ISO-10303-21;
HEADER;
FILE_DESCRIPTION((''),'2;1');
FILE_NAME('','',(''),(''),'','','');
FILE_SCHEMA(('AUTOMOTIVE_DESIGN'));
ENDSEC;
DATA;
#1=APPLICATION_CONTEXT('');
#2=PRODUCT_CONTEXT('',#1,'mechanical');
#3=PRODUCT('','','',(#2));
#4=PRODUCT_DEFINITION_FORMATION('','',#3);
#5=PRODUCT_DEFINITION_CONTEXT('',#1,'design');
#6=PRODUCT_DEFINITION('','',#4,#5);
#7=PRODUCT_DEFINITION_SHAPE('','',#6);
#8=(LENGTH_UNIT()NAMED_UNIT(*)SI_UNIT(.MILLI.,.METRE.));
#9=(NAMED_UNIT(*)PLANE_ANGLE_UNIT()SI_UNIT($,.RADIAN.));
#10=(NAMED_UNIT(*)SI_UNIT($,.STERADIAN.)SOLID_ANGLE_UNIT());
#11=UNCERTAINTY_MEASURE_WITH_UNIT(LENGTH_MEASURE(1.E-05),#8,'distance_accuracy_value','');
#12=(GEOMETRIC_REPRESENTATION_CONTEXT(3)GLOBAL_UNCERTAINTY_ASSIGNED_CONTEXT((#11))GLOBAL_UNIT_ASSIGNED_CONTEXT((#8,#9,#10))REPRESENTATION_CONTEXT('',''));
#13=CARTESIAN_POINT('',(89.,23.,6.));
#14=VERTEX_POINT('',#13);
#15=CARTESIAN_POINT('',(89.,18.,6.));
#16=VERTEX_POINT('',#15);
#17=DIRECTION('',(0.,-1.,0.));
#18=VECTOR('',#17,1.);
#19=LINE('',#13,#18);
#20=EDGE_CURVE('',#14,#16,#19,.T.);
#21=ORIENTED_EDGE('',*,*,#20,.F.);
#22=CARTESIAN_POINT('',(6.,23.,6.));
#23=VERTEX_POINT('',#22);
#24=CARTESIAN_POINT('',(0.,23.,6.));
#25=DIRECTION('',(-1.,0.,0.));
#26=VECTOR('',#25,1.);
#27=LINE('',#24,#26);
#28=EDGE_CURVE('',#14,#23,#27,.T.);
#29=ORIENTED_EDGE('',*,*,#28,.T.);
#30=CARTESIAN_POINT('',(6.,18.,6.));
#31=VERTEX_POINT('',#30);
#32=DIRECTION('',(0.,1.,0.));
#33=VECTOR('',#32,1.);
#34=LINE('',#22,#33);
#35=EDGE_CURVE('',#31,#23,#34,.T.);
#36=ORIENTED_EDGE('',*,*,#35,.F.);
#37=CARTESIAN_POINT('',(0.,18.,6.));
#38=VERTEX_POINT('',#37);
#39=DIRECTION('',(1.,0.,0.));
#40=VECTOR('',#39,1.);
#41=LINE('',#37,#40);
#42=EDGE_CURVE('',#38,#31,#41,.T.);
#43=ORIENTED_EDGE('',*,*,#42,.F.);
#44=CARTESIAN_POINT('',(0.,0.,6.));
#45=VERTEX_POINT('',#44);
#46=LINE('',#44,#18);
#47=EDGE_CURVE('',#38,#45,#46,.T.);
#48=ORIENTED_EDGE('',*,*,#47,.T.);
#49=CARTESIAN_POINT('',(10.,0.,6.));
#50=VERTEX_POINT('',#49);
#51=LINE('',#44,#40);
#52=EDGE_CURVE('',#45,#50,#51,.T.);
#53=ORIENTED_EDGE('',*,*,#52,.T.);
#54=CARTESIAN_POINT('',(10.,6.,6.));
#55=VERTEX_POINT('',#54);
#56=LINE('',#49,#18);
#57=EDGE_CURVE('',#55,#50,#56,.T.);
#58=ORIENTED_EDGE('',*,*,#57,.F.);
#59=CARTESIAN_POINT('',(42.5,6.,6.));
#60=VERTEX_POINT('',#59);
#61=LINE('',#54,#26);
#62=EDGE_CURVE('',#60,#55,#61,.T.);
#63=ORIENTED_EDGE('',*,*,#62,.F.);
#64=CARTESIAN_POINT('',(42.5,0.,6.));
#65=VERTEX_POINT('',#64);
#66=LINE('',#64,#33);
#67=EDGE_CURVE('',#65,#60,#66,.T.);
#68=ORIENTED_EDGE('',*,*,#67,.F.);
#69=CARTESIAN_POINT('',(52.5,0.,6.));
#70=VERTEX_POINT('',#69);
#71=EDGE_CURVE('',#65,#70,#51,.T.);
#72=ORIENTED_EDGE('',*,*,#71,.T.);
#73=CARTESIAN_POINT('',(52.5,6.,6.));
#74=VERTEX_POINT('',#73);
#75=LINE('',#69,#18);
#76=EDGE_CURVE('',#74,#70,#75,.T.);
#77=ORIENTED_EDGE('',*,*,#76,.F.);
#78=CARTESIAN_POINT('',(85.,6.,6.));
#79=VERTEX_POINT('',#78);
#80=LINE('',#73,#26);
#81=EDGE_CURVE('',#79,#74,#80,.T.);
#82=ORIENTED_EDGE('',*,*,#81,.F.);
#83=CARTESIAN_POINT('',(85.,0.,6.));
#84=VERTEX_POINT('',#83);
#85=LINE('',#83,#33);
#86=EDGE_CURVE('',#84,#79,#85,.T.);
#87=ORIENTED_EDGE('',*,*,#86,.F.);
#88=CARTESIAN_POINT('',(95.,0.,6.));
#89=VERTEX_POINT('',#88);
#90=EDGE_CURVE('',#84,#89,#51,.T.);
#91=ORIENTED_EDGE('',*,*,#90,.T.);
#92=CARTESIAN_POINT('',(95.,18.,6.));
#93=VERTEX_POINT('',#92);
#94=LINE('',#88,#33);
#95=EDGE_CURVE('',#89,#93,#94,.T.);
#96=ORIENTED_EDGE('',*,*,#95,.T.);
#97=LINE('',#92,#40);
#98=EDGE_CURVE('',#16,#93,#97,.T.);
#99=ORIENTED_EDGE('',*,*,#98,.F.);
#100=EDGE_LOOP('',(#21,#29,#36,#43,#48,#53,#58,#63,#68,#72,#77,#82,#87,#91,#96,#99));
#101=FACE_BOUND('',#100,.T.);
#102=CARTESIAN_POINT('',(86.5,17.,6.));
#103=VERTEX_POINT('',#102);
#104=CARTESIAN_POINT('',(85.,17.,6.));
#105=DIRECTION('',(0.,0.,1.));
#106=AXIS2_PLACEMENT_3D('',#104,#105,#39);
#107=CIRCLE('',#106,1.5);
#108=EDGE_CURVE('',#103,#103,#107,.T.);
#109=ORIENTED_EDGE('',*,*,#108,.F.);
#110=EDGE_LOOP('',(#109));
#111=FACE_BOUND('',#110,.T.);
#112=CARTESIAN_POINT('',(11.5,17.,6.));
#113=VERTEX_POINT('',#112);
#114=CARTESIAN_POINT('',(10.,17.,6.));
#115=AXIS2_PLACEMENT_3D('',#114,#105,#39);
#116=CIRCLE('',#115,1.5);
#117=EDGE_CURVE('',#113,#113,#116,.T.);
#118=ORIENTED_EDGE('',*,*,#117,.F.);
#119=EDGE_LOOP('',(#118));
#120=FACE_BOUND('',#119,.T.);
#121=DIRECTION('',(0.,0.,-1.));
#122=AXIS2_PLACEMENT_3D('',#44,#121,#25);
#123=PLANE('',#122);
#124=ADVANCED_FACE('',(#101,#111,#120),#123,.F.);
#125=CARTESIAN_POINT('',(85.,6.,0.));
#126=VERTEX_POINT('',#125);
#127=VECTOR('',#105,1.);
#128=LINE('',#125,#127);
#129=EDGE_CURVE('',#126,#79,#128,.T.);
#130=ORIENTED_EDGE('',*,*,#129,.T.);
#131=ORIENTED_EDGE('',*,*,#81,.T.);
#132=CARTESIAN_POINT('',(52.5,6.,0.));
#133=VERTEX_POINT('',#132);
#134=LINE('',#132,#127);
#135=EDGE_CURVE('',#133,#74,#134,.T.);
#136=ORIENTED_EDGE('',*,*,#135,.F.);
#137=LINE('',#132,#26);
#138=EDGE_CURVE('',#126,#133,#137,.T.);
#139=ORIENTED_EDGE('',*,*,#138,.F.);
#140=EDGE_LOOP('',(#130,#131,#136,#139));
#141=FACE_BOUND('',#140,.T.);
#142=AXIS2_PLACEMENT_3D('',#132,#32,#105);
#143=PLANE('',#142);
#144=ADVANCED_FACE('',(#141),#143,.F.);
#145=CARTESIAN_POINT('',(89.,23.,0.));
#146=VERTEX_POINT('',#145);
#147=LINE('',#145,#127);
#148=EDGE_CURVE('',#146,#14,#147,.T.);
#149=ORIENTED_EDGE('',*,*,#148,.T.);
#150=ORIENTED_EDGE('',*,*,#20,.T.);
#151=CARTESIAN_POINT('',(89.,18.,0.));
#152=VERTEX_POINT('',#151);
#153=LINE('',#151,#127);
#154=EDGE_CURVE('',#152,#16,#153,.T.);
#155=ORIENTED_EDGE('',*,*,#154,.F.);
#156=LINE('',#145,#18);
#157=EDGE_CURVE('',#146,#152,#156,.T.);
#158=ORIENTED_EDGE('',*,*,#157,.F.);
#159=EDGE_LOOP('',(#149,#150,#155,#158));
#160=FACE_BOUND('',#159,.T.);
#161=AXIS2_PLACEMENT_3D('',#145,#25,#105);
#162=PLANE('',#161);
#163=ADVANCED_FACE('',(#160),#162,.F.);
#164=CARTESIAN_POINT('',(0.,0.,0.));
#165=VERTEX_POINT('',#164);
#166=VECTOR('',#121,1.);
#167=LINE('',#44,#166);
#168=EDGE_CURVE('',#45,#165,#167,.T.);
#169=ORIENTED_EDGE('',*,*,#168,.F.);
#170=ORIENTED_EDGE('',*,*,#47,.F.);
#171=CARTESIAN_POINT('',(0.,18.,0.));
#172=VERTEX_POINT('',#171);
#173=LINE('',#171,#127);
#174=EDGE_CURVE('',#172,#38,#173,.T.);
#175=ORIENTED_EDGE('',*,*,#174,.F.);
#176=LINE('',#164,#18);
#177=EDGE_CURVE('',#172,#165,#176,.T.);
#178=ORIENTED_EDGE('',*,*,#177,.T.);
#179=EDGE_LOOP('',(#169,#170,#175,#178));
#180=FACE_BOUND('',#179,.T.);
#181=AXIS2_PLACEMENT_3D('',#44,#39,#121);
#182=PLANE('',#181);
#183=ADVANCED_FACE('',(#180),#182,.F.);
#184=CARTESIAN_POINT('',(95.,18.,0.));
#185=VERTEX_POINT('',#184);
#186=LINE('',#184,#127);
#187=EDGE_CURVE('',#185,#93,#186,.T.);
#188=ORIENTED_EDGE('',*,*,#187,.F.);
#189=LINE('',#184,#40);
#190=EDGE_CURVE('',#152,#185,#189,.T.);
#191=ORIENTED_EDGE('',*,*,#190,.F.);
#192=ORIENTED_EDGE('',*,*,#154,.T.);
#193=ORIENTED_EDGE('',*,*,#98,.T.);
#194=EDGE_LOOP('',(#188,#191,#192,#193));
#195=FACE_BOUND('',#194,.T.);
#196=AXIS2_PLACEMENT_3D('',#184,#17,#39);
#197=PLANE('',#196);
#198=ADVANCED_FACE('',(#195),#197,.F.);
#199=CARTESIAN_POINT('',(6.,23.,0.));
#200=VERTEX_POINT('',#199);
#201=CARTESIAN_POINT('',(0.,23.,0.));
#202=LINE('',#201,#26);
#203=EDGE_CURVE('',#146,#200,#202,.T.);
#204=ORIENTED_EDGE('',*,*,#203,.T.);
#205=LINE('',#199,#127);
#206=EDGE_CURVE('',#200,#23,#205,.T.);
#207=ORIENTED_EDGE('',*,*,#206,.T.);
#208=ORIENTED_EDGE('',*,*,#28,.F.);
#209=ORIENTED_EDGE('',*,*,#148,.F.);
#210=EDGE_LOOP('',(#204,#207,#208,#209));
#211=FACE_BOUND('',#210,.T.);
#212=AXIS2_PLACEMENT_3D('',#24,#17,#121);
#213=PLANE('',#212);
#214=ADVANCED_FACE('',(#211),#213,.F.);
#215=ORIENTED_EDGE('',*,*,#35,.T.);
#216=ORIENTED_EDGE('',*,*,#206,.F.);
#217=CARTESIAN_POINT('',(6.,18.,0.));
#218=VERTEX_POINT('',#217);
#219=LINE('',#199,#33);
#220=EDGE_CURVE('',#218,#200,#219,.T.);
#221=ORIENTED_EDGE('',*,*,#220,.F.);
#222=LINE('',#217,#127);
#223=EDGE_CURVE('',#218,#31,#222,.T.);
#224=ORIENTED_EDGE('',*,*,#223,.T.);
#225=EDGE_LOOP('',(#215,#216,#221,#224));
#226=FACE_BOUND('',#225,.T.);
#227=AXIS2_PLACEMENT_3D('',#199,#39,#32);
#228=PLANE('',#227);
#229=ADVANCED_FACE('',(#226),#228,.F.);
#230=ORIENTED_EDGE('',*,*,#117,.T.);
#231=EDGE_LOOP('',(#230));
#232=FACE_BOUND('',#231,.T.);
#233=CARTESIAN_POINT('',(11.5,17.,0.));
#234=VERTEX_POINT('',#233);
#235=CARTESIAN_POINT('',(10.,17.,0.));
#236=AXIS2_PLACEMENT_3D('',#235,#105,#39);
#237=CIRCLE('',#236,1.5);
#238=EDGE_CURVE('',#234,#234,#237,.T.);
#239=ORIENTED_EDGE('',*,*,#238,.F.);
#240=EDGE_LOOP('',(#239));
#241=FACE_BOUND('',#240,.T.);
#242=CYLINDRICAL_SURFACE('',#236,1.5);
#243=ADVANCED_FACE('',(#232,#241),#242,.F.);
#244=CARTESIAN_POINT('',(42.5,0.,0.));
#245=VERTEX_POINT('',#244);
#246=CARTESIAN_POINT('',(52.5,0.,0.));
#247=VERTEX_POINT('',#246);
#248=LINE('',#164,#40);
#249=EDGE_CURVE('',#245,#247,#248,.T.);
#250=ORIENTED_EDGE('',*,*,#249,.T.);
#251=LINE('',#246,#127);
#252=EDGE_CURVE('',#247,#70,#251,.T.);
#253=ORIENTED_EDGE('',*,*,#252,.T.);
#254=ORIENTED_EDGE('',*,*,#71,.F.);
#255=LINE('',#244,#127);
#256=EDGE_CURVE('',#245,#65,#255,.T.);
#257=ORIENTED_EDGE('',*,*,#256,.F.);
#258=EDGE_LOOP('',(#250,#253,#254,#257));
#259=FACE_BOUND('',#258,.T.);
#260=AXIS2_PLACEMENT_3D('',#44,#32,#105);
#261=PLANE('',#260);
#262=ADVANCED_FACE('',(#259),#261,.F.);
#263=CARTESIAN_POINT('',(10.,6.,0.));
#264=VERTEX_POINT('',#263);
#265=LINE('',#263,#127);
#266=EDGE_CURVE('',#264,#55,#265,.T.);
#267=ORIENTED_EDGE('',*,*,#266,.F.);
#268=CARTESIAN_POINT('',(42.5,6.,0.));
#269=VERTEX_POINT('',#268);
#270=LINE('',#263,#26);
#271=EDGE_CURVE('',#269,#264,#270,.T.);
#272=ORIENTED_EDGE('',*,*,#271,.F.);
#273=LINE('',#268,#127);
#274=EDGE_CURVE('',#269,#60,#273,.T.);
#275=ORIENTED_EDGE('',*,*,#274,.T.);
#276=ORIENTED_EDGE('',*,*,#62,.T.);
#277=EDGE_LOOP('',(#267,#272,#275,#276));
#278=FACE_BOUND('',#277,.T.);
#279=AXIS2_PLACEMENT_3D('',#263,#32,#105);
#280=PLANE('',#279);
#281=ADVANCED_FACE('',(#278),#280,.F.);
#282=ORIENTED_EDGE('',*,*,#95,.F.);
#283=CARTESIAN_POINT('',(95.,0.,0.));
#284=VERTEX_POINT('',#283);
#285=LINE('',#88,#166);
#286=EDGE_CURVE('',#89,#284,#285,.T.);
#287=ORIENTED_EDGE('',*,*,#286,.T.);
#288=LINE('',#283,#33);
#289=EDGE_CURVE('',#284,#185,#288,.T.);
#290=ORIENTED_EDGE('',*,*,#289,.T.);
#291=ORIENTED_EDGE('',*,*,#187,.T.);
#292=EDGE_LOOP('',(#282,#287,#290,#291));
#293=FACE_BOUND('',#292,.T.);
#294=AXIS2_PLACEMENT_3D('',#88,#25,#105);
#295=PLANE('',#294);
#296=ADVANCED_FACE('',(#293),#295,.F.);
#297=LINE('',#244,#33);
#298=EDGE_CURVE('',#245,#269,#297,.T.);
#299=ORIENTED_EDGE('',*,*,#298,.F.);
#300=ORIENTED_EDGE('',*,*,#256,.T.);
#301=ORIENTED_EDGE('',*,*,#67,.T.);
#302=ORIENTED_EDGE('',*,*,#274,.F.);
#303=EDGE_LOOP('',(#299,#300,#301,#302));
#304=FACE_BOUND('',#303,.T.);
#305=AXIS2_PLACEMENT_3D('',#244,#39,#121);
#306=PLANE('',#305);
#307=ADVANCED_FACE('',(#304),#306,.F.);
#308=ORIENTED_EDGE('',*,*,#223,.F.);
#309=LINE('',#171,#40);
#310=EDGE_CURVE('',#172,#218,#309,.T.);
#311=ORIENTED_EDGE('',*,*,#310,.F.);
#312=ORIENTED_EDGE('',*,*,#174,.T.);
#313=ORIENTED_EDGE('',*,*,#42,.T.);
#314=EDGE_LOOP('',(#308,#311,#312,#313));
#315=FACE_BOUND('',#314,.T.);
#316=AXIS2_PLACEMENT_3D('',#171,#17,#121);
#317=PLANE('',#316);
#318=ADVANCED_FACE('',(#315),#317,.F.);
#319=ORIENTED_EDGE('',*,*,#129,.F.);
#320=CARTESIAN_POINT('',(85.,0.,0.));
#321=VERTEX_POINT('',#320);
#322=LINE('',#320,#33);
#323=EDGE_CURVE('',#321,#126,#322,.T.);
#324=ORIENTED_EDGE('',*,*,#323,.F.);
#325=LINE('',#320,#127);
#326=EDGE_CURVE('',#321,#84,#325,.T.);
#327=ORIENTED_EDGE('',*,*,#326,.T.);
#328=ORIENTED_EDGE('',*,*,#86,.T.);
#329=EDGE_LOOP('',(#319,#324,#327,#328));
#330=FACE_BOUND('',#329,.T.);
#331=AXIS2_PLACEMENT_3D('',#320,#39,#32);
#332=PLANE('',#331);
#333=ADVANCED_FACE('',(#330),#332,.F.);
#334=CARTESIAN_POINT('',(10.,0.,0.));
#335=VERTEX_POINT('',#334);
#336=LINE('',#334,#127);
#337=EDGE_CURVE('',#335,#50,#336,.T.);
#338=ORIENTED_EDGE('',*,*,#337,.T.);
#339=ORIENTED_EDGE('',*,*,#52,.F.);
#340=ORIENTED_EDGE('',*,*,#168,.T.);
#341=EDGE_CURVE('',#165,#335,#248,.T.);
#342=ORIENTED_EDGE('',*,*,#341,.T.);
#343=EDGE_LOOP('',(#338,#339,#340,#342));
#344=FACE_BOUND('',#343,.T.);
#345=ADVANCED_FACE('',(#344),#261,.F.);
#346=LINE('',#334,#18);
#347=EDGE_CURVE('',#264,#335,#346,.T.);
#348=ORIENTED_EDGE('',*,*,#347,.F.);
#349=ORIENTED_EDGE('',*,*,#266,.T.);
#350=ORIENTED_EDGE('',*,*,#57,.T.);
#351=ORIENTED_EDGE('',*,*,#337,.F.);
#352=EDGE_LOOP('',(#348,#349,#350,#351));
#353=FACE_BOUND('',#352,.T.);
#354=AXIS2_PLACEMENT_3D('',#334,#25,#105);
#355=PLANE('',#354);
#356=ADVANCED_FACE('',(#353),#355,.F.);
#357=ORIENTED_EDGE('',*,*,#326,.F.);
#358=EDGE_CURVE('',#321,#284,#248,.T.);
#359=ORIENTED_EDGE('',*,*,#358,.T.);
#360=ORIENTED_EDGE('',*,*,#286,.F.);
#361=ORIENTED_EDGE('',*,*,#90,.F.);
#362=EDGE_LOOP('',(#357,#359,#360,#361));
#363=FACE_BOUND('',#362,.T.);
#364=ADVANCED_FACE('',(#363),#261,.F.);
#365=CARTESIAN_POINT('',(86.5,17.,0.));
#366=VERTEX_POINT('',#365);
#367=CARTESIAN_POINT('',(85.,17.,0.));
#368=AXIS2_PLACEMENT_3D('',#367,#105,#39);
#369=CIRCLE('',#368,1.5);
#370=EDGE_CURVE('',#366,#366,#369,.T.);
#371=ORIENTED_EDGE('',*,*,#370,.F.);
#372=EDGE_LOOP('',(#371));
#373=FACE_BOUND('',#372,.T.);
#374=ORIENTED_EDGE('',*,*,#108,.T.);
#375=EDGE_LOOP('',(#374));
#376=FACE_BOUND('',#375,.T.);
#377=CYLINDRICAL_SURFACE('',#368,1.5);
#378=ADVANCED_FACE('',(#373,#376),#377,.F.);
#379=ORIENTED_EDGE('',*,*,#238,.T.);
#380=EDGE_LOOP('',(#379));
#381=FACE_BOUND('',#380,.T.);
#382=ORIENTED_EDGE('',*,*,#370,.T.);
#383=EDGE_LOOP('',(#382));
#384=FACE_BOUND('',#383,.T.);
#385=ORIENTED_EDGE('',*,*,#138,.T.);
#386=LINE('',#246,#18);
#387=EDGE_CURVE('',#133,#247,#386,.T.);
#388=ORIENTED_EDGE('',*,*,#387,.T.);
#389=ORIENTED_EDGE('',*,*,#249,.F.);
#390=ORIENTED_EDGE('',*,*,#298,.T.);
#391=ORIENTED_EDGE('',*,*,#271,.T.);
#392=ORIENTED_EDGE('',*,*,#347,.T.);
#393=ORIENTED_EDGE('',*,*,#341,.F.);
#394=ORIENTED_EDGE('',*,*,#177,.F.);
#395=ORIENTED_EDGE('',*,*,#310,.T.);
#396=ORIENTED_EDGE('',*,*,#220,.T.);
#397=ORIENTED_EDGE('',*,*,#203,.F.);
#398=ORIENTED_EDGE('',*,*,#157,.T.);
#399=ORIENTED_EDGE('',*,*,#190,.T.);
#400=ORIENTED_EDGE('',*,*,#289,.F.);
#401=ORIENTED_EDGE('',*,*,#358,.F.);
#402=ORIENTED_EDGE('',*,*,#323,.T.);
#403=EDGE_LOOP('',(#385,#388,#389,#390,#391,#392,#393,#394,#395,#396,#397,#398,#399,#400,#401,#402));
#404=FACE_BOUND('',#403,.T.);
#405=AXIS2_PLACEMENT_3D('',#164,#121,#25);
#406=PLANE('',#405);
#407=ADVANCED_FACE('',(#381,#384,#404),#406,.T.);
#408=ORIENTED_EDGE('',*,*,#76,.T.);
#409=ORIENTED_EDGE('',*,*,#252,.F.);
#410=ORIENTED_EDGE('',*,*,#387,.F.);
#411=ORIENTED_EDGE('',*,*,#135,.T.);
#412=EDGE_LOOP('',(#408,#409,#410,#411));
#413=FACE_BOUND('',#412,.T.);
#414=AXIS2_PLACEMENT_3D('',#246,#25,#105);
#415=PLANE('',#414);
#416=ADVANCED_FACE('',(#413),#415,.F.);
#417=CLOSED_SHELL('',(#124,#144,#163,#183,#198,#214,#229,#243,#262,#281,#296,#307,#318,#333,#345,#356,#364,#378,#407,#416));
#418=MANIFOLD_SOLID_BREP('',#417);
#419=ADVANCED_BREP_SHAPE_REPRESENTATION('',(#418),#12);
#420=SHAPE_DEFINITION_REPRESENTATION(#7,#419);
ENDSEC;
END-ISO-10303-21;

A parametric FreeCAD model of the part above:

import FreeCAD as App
import Part
import Sketcher
Q = App.Units.Quantity


def add_polygon(sketch, points):
    """Adds a closed chain of lines whose ends are joined by coincident constraints."""
    first, n = sketch.GeometryCount, len(points)
    for a, b in zip(points, points[1:] + points[:1]):
        sketch.addGeometry(Part.LineSegment(App.Vector(*a, 0), App.Vector(*b, 0)), False)
    for i in range(n):
        sketch.addConstraint(Sketcher.Constraint("Coincident", first + i, 2, first + (i + 1) % n, 1))

doc = App.newDocument("Part")
params = doc.addObject("Spreadsheet::Sheet", "Params")
for row, (alias, value) in enumerate([
    ("sketch1_width", "95 mm"),
    ("sketch1_height", "23 mm"),
    ("pad1_length", "6 mm"),
    ("sketch2_height", "6 mm"),
    ("sketch2_width", "32.5 mm"),
    ("sketch3_diameter", "3 mm"),
    ("sketch4_width", "6 mm"),
    ("sketch4_height", "5 mm"),
], start=1):
    params.set(f"A{row}", alias)
    params.set(f"B{row}", "=" + value)
    params.setAlias(f"B{row}", alias)

body = doc.addObject("PartDesign::Body", "Body")

sketch1 = body.newObject("Sketcher::SketchObject", "Sketch")
sketch1.AttachmentSupport = (doc.getObject("XY_Plane"), [""])
sketch1.MapMode = "FlatFace"
add_polygon(sketch1, [(0, 23), (0, 0), (95, 0), (95, 23)])
sketch1.addConstraint([
    Sketcher.Constraint("Vertical", 0),
    Sketcher.Constraint("Horizontal", 1),
    Sketcher.Constraint("Vertical", 2),
    Sketcher.Constraint("Horizontal", 3),
    Sketcher.Constraint("Coincident", 0, 2, -1, 1),
    Sketcher.Constraint("DistanceX", 1, 1, 1, 2, Q("95 mm")),
    Sketcher.Constraint("DistanceY", 0, 2, 0, 1, Q("23 mm")),
])
sketch1.setExpression("Constraints[9]", "Params.sketch1_width")
sketch1.setExpression("Constraints[10]", "Params.sketch1_height")
pad1 = body.newObject("PartDesign::Pad", "Pad")
pad1.Profile = sketch1
pad1.setExpression("Length", "Params.pad1_length")

sketch2 = body.newObject("Sketcher::SketchObject", "Sketch001")
sketch2.AttachmentSupport = (doc.getObject("XY_Plane"), [""])
sketch2.MapMode = "FlatFace"
sketch2.AttachmentOffset = App.Placement(App.Vector(0, 0, 6), App.Rotation())
add_polygon(sketch2, [(10, 6), (10, 0), (42, 0), (42, 6)])
add_polygon(sketch2, [(52, 6), (52, 0), (85, 0), (85, 6)])
sketch2.addConstraint([
    Sketcher.Constraint("Vertical", 0),
    Sketcher.Constraint("Horizontal", 1),
    Sketcher.Constraint("Vertical", 2),
    Sketcher.Constraint("Horizontal", 3),
    Sketcher.Constraint("Vertical", 4),
    Sketcher.Constraint("Horizontal", 5),
    Sketcher.Constraint("Vertical", 6),
    Sketcher.Constraint("Horizontal", 7),
    Sketcher.Constraint("PointOnObject", 0, 2, -1),
    Sketcher.Constraint("PointOnObject", 4, 2, -1),
    Sketcher.Constraint("Horizontal", 3, 2, 6, 2),
    Sketcher.Constraint("Equal", 3, 5),
    Sketcher.Constraint("DistanceY", 0, 2, 0, 1, Q("6 mm")),
    Sketcher.Constraint("DistanceX", 1, 1, 1, 2, Q("32.5 mm")),
    Sketcher.Constraint("DistanceX", -1, 1, 0, 2, Q("10 mm")),
    Sketcher.Constraint("DistanceX", -1, 1, 5, 2, Q("85 mm")),
])
sketch2.setExpression("Constraints[20]", "Params.sketch2_height")
sketch2.setExpression("Constraints[21]", "Params.sketch2_width")
pocket1 = body.newObject("PartDesign::Pocket", "Pocket")
pocket1.Profile = sketch2
pocket1.Type = "ThroughAll"

sketch3 = body.newObject("Sketcher::SketchObject", "Sketch002")
sketch3.AttachmentSupport = (doc.getObject("XY_Plane"), [""])
sketch3.MapMode = "FlatFace"
sketch3.AttachmentOffset = App.Placement(App.Vector(0, 0, 6), App.Rotation())
sketch3.addGeometry([
    Part.Circle(App.Vector(10, 17, 0), App.Vector(0, 0, 1), 1.5),
    Part.Circle(App.Vector(85, 17, 0), App.Vector(0, 0, 1), 1.5),
], False)
sketch3.addConstraint([
    Sketcher.Constraint("Equal", 0, 1),
    Sketcher.Constraint("Horizontal", 0, 3, 1, 3),
    Sketcher.Constraint("Diameter", 0, Q("3 mm")),
    Sketcher.Constraint("DistanceX", -1, 1, 0, 3, Q("10 mm")),
    Sketcher.Constraint("DistanceY", -1, 1, 0, 3, Q("17 mm")),
    Sketcher.Constraint("DistanceX", -1, 1, 1, 3, Q("85 mm")),
])
sketch3.setExpression("Constraints[2]", "Params.sketch3_diameter")
pocket2 = body.newObject("PartDesign::Pocket", "Pocket001")
pocket2.Profile = sketch3
pocket2.Type = "ThroughAll"

sketch4 = body.newObject("Sketcher::SketchObject", "Sketch003")
sketch4.AttachmentSupport = (doc.getObject("XY_Plane"), [""])
sketch4.MapMode = "FlatFace"
sketch4.AttachmentOffset = App.Placement(App.Vector(0, 0, 6), App.Rotation())
add_polygon(sketch4, [(0, 23), (0, 18), (6, 18), (6, 23)])
add_polygon(sketch4, [(89, 23), (89, 18), (95, 18), (95, 23)])
sketch4.addConstraint([
    Sketcher.Constraint("Vertical", 0),
    Sketcher.Constraint("Horizontal", 1),
    Sketcher.Constraint("Vertical", 2),
    Sketcher.Constraint("Horizontal", 3),
    Sketcher.Constraint("Vertical", 4),
    Sketcher.Constraint("Horizontal", 5),
    Sketcher.Constraint("Vertical", 6),
    Sketcher.Constraint("Horizontal", 7),
    Sketcher.Constraint("PointOnObject", 0, 2, -2),
    Sketcher.Constraint("Horizontal", 1, 2, 4, 2),
    Sketcher.Constraint("Horizontal", 3, 2, 6, 2),
    Sketcher.Constraint("Equal", 3, 5),
    Sketcher.Constraint("DistanceX", 1, 1, 1, 2, Q("6 mm")),
    Sketcher.Constraint("DistanceY", 0, 2, 0, 1, Q("5 mm")),
    Sketcher.Constraint("DistanceY", -1, 1, 0, 2, Q("18 mm")),
    Sketcher.Constraint("DistanceX", -1, 1, 4, 2, Q("89 mm")),
])
sketch4.setExpression("Constraints[20]", "Params.sketch4_width")
sketch4.setExpression("Constraints[21]", "Params.sketch4_height")
pocket3 = body.newObject("PartDesign::Pocket", "Pocket002")
pocket3.Profile = sketch4
pocket3.Type = "ThroughAll"

doc.recompute()
